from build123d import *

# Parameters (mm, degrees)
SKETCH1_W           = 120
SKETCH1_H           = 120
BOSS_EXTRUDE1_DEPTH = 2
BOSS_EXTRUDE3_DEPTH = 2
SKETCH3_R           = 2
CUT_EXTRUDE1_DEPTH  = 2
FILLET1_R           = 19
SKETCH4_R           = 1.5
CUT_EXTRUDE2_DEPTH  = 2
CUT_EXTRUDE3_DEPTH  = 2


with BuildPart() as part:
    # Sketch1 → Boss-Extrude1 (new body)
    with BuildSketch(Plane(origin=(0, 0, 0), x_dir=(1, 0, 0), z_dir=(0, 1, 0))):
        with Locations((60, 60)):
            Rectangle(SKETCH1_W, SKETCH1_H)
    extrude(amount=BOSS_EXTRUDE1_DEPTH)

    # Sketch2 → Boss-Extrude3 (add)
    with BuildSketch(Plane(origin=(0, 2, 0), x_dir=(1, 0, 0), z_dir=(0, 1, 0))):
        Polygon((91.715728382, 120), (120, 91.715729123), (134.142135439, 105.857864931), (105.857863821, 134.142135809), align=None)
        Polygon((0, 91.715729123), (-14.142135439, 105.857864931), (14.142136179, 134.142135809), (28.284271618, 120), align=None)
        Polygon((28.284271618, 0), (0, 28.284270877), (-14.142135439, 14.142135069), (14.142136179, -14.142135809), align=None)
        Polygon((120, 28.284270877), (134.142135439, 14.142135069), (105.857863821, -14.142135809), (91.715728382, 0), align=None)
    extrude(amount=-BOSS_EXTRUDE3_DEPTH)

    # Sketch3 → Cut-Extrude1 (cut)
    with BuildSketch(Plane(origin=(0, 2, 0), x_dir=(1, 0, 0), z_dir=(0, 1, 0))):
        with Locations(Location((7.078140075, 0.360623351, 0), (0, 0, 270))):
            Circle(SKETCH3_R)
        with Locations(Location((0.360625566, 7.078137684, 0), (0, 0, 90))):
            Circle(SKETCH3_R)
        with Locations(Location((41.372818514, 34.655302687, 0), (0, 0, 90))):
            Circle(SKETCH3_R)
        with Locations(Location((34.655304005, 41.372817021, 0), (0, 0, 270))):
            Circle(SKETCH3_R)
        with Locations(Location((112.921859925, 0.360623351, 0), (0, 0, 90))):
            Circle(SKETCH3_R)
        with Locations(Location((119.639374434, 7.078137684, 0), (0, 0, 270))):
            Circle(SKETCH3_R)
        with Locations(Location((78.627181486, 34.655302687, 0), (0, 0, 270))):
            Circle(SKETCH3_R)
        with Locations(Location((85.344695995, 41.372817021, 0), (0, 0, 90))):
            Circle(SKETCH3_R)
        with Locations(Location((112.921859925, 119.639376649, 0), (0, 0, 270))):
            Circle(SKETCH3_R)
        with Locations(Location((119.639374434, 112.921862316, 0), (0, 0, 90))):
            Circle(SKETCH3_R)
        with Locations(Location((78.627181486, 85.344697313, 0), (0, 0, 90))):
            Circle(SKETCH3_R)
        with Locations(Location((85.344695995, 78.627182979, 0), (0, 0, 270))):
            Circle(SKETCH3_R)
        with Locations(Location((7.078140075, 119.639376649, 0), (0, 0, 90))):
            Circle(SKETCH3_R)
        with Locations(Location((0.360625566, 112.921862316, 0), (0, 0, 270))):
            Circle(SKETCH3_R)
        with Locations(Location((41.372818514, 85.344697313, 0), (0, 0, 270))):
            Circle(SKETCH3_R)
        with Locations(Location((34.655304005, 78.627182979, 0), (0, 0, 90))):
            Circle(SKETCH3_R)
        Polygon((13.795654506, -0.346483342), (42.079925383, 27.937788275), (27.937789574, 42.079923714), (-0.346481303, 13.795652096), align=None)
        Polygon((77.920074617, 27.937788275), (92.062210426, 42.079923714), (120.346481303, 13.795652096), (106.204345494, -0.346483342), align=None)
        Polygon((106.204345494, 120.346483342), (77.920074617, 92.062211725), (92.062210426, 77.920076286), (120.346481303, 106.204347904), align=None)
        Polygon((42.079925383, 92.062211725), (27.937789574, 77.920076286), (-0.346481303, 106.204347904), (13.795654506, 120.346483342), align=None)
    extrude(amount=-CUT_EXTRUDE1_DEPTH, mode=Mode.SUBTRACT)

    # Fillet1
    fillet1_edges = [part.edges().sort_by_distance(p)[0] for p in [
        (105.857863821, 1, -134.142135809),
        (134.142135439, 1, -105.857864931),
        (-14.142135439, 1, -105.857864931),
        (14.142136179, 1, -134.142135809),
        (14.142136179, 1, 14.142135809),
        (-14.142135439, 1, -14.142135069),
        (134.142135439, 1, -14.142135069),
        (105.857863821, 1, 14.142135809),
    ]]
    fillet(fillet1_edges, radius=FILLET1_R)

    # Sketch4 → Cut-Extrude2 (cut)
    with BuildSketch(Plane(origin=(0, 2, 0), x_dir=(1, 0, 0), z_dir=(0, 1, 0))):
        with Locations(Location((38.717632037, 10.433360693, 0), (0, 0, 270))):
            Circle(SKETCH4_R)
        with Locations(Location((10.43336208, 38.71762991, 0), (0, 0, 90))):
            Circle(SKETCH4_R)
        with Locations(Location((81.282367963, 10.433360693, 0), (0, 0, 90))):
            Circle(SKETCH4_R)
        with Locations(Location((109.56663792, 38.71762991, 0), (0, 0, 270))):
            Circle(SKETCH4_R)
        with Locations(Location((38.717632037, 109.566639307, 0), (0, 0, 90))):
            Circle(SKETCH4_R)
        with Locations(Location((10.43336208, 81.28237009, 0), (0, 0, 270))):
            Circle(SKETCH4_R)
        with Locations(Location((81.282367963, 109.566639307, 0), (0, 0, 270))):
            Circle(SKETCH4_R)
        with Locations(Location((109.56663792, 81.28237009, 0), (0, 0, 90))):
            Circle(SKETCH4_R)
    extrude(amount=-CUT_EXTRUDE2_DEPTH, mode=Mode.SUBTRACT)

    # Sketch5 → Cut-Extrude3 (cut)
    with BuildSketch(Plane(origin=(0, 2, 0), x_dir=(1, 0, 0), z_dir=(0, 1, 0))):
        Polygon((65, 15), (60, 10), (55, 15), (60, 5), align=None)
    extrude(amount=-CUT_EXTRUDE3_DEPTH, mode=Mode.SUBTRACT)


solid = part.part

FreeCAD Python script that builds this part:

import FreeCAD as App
import Part
import Sketcher

V = App.Vector


def edges_at(feature, points):
    """Names of the edges that pass closest to the given points."""
    edges = feature.Shape.Edges
    near = lambda p: min(range(len(edges)), key=lambda i: edges[i].distToShape(Part.Vertex(*p))[0])
    return sorted({f"Edge{near(p) + 1}" for p in points})


def add_polygon(sketch, points):
    """Adds a closed chain of lines whose ends are joined by coincident constraints."""
    first, n = sketch.GeometryCount, len(points)
    for a, b in zip(points, points[1:] + points[:1]):
        sketch.addGeometry(Part.LineSegment(App.Vector(*a, 0), App.Vector(*b, 0)), False)
    for i in range(n):
        sketch.addConstraint(Sketcher.Constraint("Coincident", first + i, 2, first + (i + 1) % n, 1))

doc = App.newDocument("Part")
body = doc.addObject("PartDesign::Body", "Body")

# Sketch on XZ plane
sketch1 = body.newObject("Sketcher::SketchObject", "Sketch")
sketch1.AttachmentSupport = (doc.getObject("XZ_Plane"), [""])
sketch1.MapMode = "FlatFace"
add_polygon(sketch1, [(0, -120), (0, 0), (120, 0), (120, -120)])  # lines 0-3
sketch1.addConstraint(Sketcher.Constraint("Vertical", 0))
sketch1.addConstraint(Sketcher.Constraint("Horizontal", 1))
sketch1.addConstraint(Sketcher.Constraint("Vertical", 2))
sketch1.addConstraint(Sketcher.Constraint("Horizontal", 3))
sketch1.addConstraint(Sketcher.Constraint("Coincident", 0, 2, -1, 1))
sketch1.addConstraint(Sketcher.Constraint("Equal", 3, 0))
sketch1.addConstraint(Sketcher.Constraint("DistanceX", 1, 1, 1, 2, 120.0))
pad1 = body.newObject("PartDesign::Pad", "Pad")
pad1.Profile = sketch1
pad1.Length = 2
pad1.Reversed = True

# Sketch on XZ plane
sketch2 = body.newObject("Sketcher::SketchObject", "Sketch001")
sketch2.AttachmentSupport = (doc.getObject("XZ_Plane"), [""])
sketch2.MapMode = "FlatFace"
sketch2.AttachmentOffset = App.Placement(V(0, 0, -2), App.Rotation())
add_polygon(sketch2, [(92, -120), (120, -92), (134, -106), (106, -134)])  # lines 0-3
add_polygon(sketch2, [(-14, -106), (0, -92), (28, -120), (14, -134)])  # lines 4-7
add_polygon(sketch2, [(28, 0), (0, -28), (-14, -14), (14, 14)])  # lines 8-11
add_polygon(sketch2, [(134, -14), (120, -28), (92, 0), (106, 14)])  # lines 12-15
sketch2.addConstraint(Sketcher.Constraint("Symmetric", 9, 2, 10, 2, -1, 1))
sketch2.addConstraint(Sketcher.Constraint("PointOnObject", 4, 2, -2))
sketch2.addConstraint(Sketcher.Constraint("PointOnObject", 8, 2, -2))
sketch2.addConstraint(Sketcher.Constraint("PointOnObject", 11, 2, -1))
sketch2.addConstraint(Sketcher.Constraint("PointOnObject", 13, 2, -1))
sketch2.addConstraint(Sketcher.Constraint("Perpendicular", 0, 1))
sketch2.addConstraint(Sketcher.Constraint("Perpendicular", 1, 2))
sketch2.addConstraint(Sketcher.Constraint("Perpendicular", 2, 3))
sketch2.addConstraint(Sketcher.Constraint("Perpendicular", 3, 4))
sketch2.addConstraint(Sketcher.Constraint("Perpendicular", 4, 5))
sketch2.addConstraint(Sketcher.Constraint("Perpendicular", 5, 6))
sketch2.addConstraint(Sketcher.Constraint("Perpendicular", 6, 7))
sketch2.addConstraint(Sketcher.Constraint("Perpendicular", 7, 8))
sketch2.addConstraint(Sketcher.Constraint("Perpendicular", 8, 9))
sketch2.addConstraint(Sketcher.Constraint("Perpendicular", 9, 10))
sketch2.addConstraint(Sketcher.Constraint("Perpendicular", 10, 11))
sketch2.addConstraint(Sketcher.Constraint("Perpendicular", 11, 12))
sketch2.addConstraint(Sketcher.Constraint("Perpendicular", 12, 13))
sketch2.addConstraint(Sketcher.Constraint("Perpendicular", 13, 14))
sketch2.addConstraint(Sketcher.Constraint("Perpendicular", 14, 15))
sketch2.addConstraint(Sketcher.Constraint("Horizontal", 0, 2, 4, 2))
sketch2.addConstraint(Sketcher.Constraint("Horizontal", 3, 2, 5, 2))
sketch2.addConstraint(Sketcher.Constraint("Horizontal", 2, 2, 6, 2))
sketch2.addConstraint(Sketcher.Constraint("Horizontal", 8, 2, 12, 2))
sketch2.addConstraint(Sketcher.Constraint("Horizontal", 10, 2, 14, 2))
sketch2.addConstraint(Sketcher.Constraint("Vertical", 7, 2, 9, 2))
sketch2.addConstraint(Sketcher.Constraint("Vertical", 6, 2, 10, 2))
sketch2.addConstraint(Sketcher.Constraint("Vertical", 0, 2, 12, 2))
sketch2.addConstraint(Sketcher.Constraint("Distance", 0, 40.0))
sketch2.addConstraint(Sketcher.Constraint("DistanceX", -1, 1, 0, 2, 120.0))
sketch2.addConstraint(Sketcher.Constraint("DistanceY", 3, 2, -1, 1, 120.0))
pad2 = body.newObject("PartDesign::Pad", "Pad001")
pad2.Profile = sketch2
pad2.Length = 2

# Sketch on XZ plane
sketch3 = body.newObject("Sketcher::SketchObject", "Sketch002")
sketch3.AttachmentSupport = (doc.getObject("XZ_Plane"), [""])
sketch3.MapMode = "FlatFace"
sketch3.AttachmentOffset = App.Placement(V(0, 0, -2), App.Rotation())
sketch3.addGeometry(Part.Circle(V(7.1, -0.4, 0), V(0, 0, 1), 2), False)  # 0
sketch3.addGeometry(Part.Circle(V(0.4, -7.1, 0), V(0, 0, 1), 2), False)  # 1
sketch3.addGeometry(Part.Circle(V(41.4, -34.7, 0), V(0, 0, 1), 2), False)  # 2
sketch3.addGeometry(Part.Circle(V(34.7, -41.4, 0), V(0, 0, 1), 2), False)  # 3
sketch3.addGeometry(Part.Circle(V(112.9, -0.4, 0), V(0, 0, 1), 2), False)  # 4
sketch3.addGeometry(Part.Circle(V(119.6, -7.1, 0), V(0, 0, 1), 2), False)  # 5
sketch3.addGeometry(Part.Circle(V(78.6, -34.7, 0), V(0, 0, 1), 2), False)  # 6
sketch3.addGeometry(Part.Circle(V(85.3, -41.4, 0), V(0, 0, 1), 2), False)  # 7
sketch3.addGeometry(Part.Circle(V(112.9, -119.6, 0), V(0, 0, 1), 2), False)  # 8
sketch3.addGeometry(Part.Circle(V(119.6, -112.9, 0), V(0, 0, 1), 2), False)  # 9
sketch3.addGeometry(Part.Circle(V(78.6, -85.3, 0), V(0, 0, 1), 2), False)  # 10
sketch3.addGeometry(Part.Circle(V(85.3, -78.6, 0), V(0, 0, 1), 2), False)  # 11
sketch3.addGeometry(Part.Circle(V(7.1, -119.6, 0), V(0, 0, 1), 2), False)  # 12
sketch3.addGeometry(Part.Circle(V(0.4, -112.9, 0), V(0, 0, 1), 2), False)  # 13
sketch3.addGeometry(Part.Circle(V(41.4, -85.3, 0), V(0, 0, 1), 2), False)  # 14
sketch3.addGeometry(Part.Circle(V(34.7, -78.6, 0), V(0, 0, 1), 2), False)  # 15
add_polygon(sketch3, [(13.8, 0.3), (42.1, -27.9), (27.9, -42.1), (-0.3, -13.8)])  # lines 16-19
add_polygon(sketch3, [(92.1, -42.1), (77.9, -27.9), (106.2, 0.3), (120.3, -13.8)])  # lines 20-23
add_polygon(sketch3, [(106.2, -120.3), (77.9, -92.1), (92.1, -77.9), (120.3, -106.2)])  # lines 24-27
add_polygon(sketch3, [(27.9, -77.9), (42.1, -92.1), (13.8, -120.3), (-0.3, -106.2)])  # lines 28-31
sketch3.addConstraint(Sketcher.Constraint("Equal", 0, 1))
sketch3.addConstraint(Sketcher.Constraint("Equal", 1, 2))
sketch3.addConstraint(Sketcher.Constraint("Equal", 2, 3))
sketch3.addConstraint(Sketcher.Constraint("Equal", 3, 4))
sketch3.addConstraint(Sketcher.Constraint("Equal", 4, 5))
sketch3.addConstraint(Sketcher.Constraint("Equal", 5, 6))
sketch3.addConstraint(Sketcher.Constraint("Equal", 6, 7))
sketch3.addConstraint(Sketcher.Constraint("Equal", 7, 8))
sketch3.addConstraint(Sketcher.Constraint("Equal", 8, 9))
sketch3.addConstraint(Sketcher.Constraint("Equal", 9, 10))
sketch3.addConstraint(Sketcher.Constraint("Equal", 10, 11))
sketch3.addConstraint(Sketcher.Constraint("Equal", 11, 12))
sketch3.addConstraint(Sketcher.Constraint("Equal", 12, 13))
sketch3.addConstraint(Sketcher.Constraint("Equal", 13, 14))
sketch3.addConstraint(Sketcher.Constraint("Equal", 14, 15))
sketch3.addConstraint(Sketcher.Constraint("Perpendicular", 16, 17))
sketch3.addConstraint(Sketcher.Constraint("Perpendicular", 17, 18))
sketch3.addConstraint(Sketcher.Constraint("Perpendicular", 18, 19))
sketch3.addConstraint(Sketcher.Constraint("Perpendicular", 19, 20))
sketch3.addConstraint(Sketcher.Constraint("Perpendicular", 20, 21))
sketch3.addConstraint(Sketcher.Constraint("Perpendicular", 21, 22))
sketch3.addConstraint(Sketcher.Constraint("Perpendicular", 22, 23))
sketch3.addConstraint(Sketcher.Constraint("Perpendicular", 23, 24))
sketch3.addConstraint(Sketcher.Constraint("Perpendicular", 24, 25))
sketch3.addConstraint(Sketcher.Constraint("Perpendicular", 25, 26))
sketch3.addConstraint(Sketcher.Constraint("Perpendicular", 26, 27))
sketch3.addConstraint(Sketcher.Constraint("Perpendicular", 27, 28))
sketch3.addConstraint(Sketcher.Constraint("Perpendicular", 28, 29))
sketch3.addConstraint(Sketcher.Constraint("Perpendicular", 29, 30))
sketch3.addConstraint(Sketcher.Constraint("Perpendicular", 30, 31))
sketch3.addConstraint(Sketcher.Constraint("Horizontal", 0, 3, 4, 3))
sketch3.addConstraint(Sketcher.Constraint("Horizontal", 1, 3, 5, 3))
sketch3.addConstraint(Sketcher.Constraint("Horizontal", 2, 3, 6, 3))
sketch3.addConstraint(Sketcher.Constraint("Horizontal", 3, 3, 7, 3))
sketch3.addConstraint(Sketcher.Constraint("Horizontal", 8, 3, 12, 3))
sketch3.addConstraint(Sketcher.Constraint("Horizontal", 9, 3, 13, 3))
sketch3.addConstraint(Sketcher.Constraint("Horizontal", 10, 3, 14, 3))
sketch3.addConstraint(Sketcher.Constraint("Horizontal", 11, 3, 15, 3))
sketch3.addConstraint(Sketcher.Constraint("Horizontal", 16, 2, 20, 2))
sketch3.addConstraint(Sketcher.Constraint("Horizontal", 19, 2, 21, 2))
sketch3.addConstraint(Sketcher.Constraint("Horizontal", 18, 2, 22, 2))
sketch3.addConstraint(Sketcher.Constraint("Horizontal", 24, 2, 28, 2))
sketch3.addConstraint(Sketcher.Constraint("Horizontal", 27, 2, 29, 2))
sketch3.addConstraint(Sketcher.Constraint("Horizontal", 26, 2, 30, 2))
sketch3.addConstraint(Sketcher.Constraint("Vertical", 4, 3, 8, 3))
sketch3.addConstraint(Sketcher.Constraint("Vertical", 5, 3, 9, 3))
sketch3.addConstraint(Sketcher.Constraint("Vertical", 6, 3, 10, 3))
sketch3.addConstraint(Sketcher.Constraint("Vertical", 7, 3, 11, 3))
sketch3.addConstraint(Sketcher.Constraint("Vertical", 0, 3, 12, 3))
sketch3.addConstraint(Sketcher.Constraint("Vertical", 1, 3, 13, 3))
sketch3.addConstraint(Sketcher.Constraint("Vertical", 2, 3, 14, 3))
sketch3.addConstraint(Sketcher.Constraint("Vertical", 3, 3, 15, 3))
sketch3.addConstraint(Sketcher.Constraint("Vertical", 20, 2, 24, 2))
sketch3.addConstraint(Sketcher.Constraint("Vertical", 23, 2, 25, 2))
sketch3.addConstraint(Sketcher.Constraint("Vertical", 22, 2, 26, 2))
sketch3.addConstraint(Sketcher.Constraint("Vertical", 16, 2, 28, 2))
sketch3.addConstraint(Sketcher.Constraint("Vertical", 19, 2, 29, 2))
sketch3.addConstraint(Sketcher.Constraint("Diameter", 0, 4.0))
sketch3.addConstraint(Sketcher.Constraint("Distance", 16, 40.0))
sketch3.addConstraint(Sketcher.Constraint("Distance", 17, 20.0))
sketch3.addConstraint(Sketcher.Constraint("DistanceY", 7, 3, 21, 2, 41.7193))
sketch3.addConstraint(Sketcher.Constraint("DistanceY", 29, 2, 15, 3, 41.7193))
sketch3.addConstraint(Sketcher.Constraint("DistanceX", -1, 1, 0, 3, 7.07814))
sketch3.addConstraint(Sketcher.Constraint("DistanceX", -1, 1, 2, 3, 41.372819))
sketch3.addConstraint(Sketcher.Constraint("DistanceX", -1, 1, 4, 3, 112.92186))
sketch3.addConstraint(Sketcher.Constraint("DistanceX", -1, 1, 6, 3, 78.627181))
sketch3.addConstraint(Sketcher.Constraint("DistanceY", 16, 2, -1, 1, 27.937788))
sketch3.addConstraint(Sketcher.Constraint("DistanceX", -1, 1, 17, 2, 27.93779))
sketch3.addConstraint(Sketcher.Constraint("DistanceX", -1, 1, 22, 2, 120.346481))
sketch3.addConstraint(Sketcher.Constraint("DistanceY", 24, 2, -1, 1, 92.062212))
sketch3.addConstraint(Sketcher.Constraint("DistanceY", 2, 3, 0, 3, 34.294679))
sketch3.addConstraint(Sketcher.Constraint("DistanceX", 1, 3, 3, 3, 34.294678))
sketch3.addConstraint(Sketcher.Constraint("DistanceY", 3, 3, 1, 3, 34.294679))
sketch3.addConstraint(Sketcher.Constraint("DistanceX", 3, 3, 5, 3, 84.98407))
sketch3.addConstraint(Sketcher.Constraint("DistanceX", 7, 3, 5, 3, 34.294678))
sketch3.addConstraint(Sketcher.Constraint("DistanceY", 8, 3, 7, 3, 78.26656))
sketch3.addConstraint(Sketcher.Constraint("DistanceY", 9, 3, 6, 3, 78.26656))
sketch3.addConstraint(Sketcher.Constraint("DistanceY", 10, 3, 7, 3, 43.97188))
sketch3.addConstraint(Sketcher.Constraint("DistanceY", 11, 3, 6, 3, 43.97188))
sketch3.addConstraint(Sketcher.Constraint("DistanceX", 3, 3, 16, 2, 7.424621))
pocket1 = body.newObject("PartDesign::Pocket", "Pocket")
pocket1.Profile = sketch3
pocket1.Length = 2
pocket1.Reversed = True
doc.recompute()

fillet = body.newObject("PartDesign::Fillet", "Fillet")
fillet.Base = (pocket1, edges_at(pocket1, [
    (105.858, 1, -134.142),
    (134.142, 1, -105.858),
    (-14.142, 1, -105.858),
    (14.142, 1, -134.142),
    (14.142, 1, 14.142),
    (-14.142, 1, -14.142),
    (134.142, 1, -14.142),
    (105.858, 1, 14.142),
]))
fillet.Radius = 19

# Sketch on XZ plane
sketch4 = body.newObject("Sketcher::SketchObject", "Sketch003")
sketch4.AttachmentSupport = (doc.getObject("XZ_Plane"), [""])
sketch4.MapMode = "FlatFace"
sketch4.AttachmentOffset = App.Placement(V(0, 0, -2), App.Rotation())
sketch4.addGeometry(Part.Circle(V(38.7, -10.4, 0), V(0, 0, 1), 1.5), False)
sketch4.addGeometry(Part.Circle(V(10.4, -38.7, 0), V(0, 0, 1), 1.5), False)
sketch4.addGeometry(Part.Circle(V(81.3, -10.4, 0), V(0, 0, 1), 1.5), False)
sketch4.addGeometry(Part.Circle(V(109.6, -38.7, 0), V(0, 0, 1), 1.5), False)
sketch4.addGeometry(Part.Circle(V(38.7, -109.6, 0), V(0, 0, 1), 1.5), False)
sketch4.addGeometry(Part.Circle(V(10.4, -81.3, 0), V(0, 0, 1), 1.5), False)
sketch4.addGeometry(Part.Circle(V(81.3, -109.6, 0), V(0, 0, 1), 1.5), False)
sketch4.addGeometry(Part.Circle(V(109.6, -81.3, 0), V(0, 0, 1), 1.5), False)
sketch4.addConstraint(Sketcher.Constraint("Equal", 0, 1))
sketch4.addConstraint(Sketcher.Constraint("Equal", 1, 2))
sketch4.addConstraint(Sketcher.Constraint("Equal", 2, 3))
sketch4.addConstraint(Sketcher.Constraint("Equal", 3, 4))
sketch4.addConstraint(Sketcher.Constraint("Equal", 4, 5))
sketch4.addConstraint(Sketcher.Constraint("Equal", 5, 6))
sketch4.addConstraint(Sketcher.Constraint("Equal", 6, 7))
sketch4.addConstraint(Sketcher.Constraint("Horizontal", 0, 3, 2, 3))
sketch4.addConstraint(Sketcher.Constraint("Horizontal", 1, 3, 3, 3))
sketch4.addConstraint(Sketcher.Constraint("Horizontal", 4, 3, 6, 3))
sketch4.addConstraint(Sketcher.Constraint("Horizontal", 5, 3, 7, 3))
sketch4.addConstraint(Sketcher.Constraint("Vertical", 0, 3, 4, 3))
sketch4.addConstraint(Sketcher.Constraint("Vertical", 1, 3, 5, 3))
sketch4.addConstraint(Sketcher.Constraint("Vertical", 2, 3, 6, 3))
sketch4.addConstraint(Sketcher.Constraint("Vertical", 3, 3, 7, 3))
sketch4.addConstraint(Sketcher.Constraint("Diameter", 0, 3.0))
sketch4.addConstraint(Sketcher.Constraint("DistanceY", 0, 3, -1, 1, 10.433361))
sketch4.addConstraint(Sketcher.Constraint("DistanceY", 1, 3, -1, 1, 38.71763))
sketch4.addConstraint(Sketcher.Constraint("DistanceY", 4, 3, -1, 1, 109.566639))
sketch4.addConstraint(Sketcher.Constraint("DistanceY", 5, 3, -1, 1, 81.28237))
sketch4.addConstraint(Sketcher.Constraint("DistanceX", 1, 3, 0, 3, 28.28427))
sketch4.addConstraint(Sketcher.Constraint("DistanceX", 2, 3, 3, 3, 28.28427))
sketch4.addConstraint(Sketcher.Constraint("DistanceX", -1, 1, 0, 3, 38.717632))
sketch4.addConstraint(Sketcher.Constraint("DistanceX", -1, 1, 2, 3, 81.282368))
pocket2 = body.newObject("PartDesign::Pocket", "Pocket001")
pocket2.Profile = sketch4
pocket2.Length = 2
pocket2.Reversed = True

# Sketch on XZ plane
sketch5 = body.newObject("Sketcher::SketchObject", "Sketch004")
sketch5.AttachmentSupport = (doc.getObject("XZ_Plane"), [""])
sketch5.MapMode = "FlatFace"
sketch5.AttachmentOffset = App.Placement(V(0, 0, -2), App.Rotation())
add_polygon(sketch5, [(65, -15), (60, -10), (55, -15), (60, -5)])  # lines 0-3
sketch5.addConstraint(Sketcher.Constraint("Perpendicular", 0, 1))
sketch5.addConstraint(Sketcher.Constraint("Horizontal", 1, 2, 3, 2))
sketch5.addConstraint(Sketcher.Constraint("Vertical", 0, 2, 2, 2))
sketch5.addConstraint(Sketcher.Constraint("Equal", 0, 1))
sketch5.addConstraint(Sketcher.Constraint("DistanceX", -1, 1, 0, 2, 60.0))
sketch5.addConstraint(Sketcher.Constraint("DistanceY", 0, 2, -1, 1, 10.0))
sketch5.addConstraint(Sketcher.Constraint("DistanceX", -1, 1, 1, 2, 55.0))
sketch5.addConstraint(Sketcher.Constraint("DistanceY", 2, 2, -1, 1, 5.0))
pocket3 = body.newObject("PartDesign::Pocket", "Pocket002")
pocket3.Profile = sketch5
pocket3.Length = 2
pocket3.Reversed = True

doc.recompute()
